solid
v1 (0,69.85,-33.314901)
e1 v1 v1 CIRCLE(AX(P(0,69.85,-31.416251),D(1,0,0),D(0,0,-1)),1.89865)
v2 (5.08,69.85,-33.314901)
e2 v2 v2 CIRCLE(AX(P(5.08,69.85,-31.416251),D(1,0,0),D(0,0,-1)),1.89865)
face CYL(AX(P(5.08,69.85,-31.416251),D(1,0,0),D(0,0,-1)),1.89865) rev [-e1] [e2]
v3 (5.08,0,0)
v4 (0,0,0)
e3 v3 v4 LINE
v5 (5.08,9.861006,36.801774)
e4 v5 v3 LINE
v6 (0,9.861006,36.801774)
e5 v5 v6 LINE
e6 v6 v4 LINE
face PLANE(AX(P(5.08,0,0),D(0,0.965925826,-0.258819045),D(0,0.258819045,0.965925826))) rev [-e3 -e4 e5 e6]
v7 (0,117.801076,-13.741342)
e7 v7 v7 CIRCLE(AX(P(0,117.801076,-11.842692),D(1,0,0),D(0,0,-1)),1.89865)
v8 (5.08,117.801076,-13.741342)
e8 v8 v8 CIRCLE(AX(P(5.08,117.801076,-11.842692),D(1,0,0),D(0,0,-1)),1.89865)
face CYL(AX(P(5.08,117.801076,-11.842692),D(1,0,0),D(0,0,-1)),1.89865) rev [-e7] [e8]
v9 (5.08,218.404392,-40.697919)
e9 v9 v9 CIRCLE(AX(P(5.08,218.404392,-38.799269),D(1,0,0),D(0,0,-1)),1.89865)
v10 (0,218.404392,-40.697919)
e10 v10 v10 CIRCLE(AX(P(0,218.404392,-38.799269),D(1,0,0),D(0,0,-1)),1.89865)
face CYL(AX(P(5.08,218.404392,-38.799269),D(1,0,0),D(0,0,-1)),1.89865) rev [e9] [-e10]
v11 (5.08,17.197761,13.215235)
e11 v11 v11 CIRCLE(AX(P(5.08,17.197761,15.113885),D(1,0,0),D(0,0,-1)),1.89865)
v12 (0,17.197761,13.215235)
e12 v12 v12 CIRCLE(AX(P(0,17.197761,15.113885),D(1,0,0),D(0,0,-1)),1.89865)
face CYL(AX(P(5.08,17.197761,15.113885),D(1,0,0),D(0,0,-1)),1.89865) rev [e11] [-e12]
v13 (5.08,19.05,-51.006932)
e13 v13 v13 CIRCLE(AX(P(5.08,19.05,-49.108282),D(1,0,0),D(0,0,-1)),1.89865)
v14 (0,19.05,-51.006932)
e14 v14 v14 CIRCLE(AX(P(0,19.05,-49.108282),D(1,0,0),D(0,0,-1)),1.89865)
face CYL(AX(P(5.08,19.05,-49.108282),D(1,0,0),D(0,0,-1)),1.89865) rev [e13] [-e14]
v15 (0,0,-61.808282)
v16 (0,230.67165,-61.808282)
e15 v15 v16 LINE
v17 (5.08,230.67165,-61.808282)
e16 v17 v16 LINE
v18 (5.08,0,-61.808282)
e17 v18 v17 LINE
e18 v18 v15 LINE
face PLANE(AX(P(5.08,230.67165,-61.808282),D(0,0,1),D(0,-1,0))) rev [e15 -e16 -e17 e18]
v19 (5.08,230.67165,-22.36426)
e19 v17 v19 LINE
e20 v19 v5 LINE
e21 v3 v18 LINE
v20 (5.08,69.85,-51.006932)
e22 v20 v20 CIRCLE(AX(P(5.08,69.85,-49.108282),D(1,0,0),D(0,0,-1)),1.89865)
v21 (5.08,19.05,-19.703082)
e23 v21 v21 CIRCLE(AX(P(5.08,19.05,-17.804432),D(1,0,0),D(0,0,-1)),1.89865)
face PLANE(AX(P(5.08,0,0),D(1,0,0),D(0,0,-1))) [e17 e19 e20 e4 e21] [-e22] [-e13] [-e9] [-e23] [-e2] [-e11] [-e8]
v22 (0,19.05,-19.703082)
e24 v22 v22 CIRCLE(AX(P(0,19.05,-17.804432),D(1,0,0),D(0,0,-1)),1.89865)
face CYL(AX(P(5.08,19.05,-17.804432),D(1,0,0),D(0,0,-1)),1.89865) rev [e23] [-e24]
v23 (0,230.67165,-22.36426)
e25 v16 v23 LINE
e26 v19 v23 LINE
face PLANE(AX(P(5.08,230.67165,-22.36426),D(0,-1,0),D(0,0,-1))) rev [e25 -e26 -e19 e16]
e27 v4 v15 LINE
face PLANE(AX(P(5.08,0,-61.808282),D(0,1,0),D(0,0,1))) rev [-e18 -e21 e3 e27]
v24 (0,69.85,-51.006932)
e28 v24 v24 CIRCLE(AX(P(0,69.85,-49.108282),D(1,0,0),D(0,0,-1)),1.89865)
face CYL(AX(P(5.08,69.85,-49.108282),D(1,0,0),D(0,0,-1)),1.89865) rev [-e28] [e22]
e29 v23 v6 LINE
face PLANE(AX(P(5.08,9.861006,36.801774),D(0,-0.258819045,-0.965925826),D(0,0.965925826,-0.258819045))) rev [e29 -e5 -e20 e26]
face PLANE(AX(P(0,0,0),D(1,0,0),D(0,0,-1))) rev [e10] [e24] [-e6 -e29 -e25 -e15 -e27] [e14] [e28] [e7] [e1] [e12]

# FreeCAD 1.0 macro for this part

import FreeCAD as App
import Part
import Sketcher

V = App.Vector
Q = App.Units.Quantity


def add_polygon(sketch, points):
    """Adds a closed chain of lines whose ends are joined by coincident constraints."""
    first, n = sketch.GeometryCount, len(points)
    for a, b in zip(points, points[1:] + points[:1]):
        sketch.addGeometry(Part.LineSegment(App.Vector(*a, 0), App.Vector(*b, 0)), False)
    for i in range(n):
        sketch.addConstraint(Sketcher.Constraint("Coincident", first + i, 2, first + (i + 1) % n, 1))

doc = App.newDocument("Part")
body = doc.addObject("PartDesign::Body", "Body")

# Sketch on YZ plane
sketch1 = body.newObject("Sketcher::SketchObject", "Sketch")
sketch1.AttachmentSupport = (doc.getObject("YZ_Plane"), [""])
sketch1.MapMode = "FlatFace"
add_polygon(sketch1, [(10, 37), (0, 0), (0, -62), (231, -62), (231, -22)])  # lines 0-4
sketch1.addConstraint([
    Sketcher.Constraint("Vertical", 1),
    Sketcher.Constraint("Horizontal", 2),
    Sketcher.Constraint("Vertical", 3),
    Sketcher.Constraint("Coincident", 0, 2, -1, 1),
    Sketcher.Constraint("Perpendicular", 0, 4),
    Sketcher.Constraint("Distance", 4, Q("9 in")),
    Sketcher.Constraint("Angle", 0, Q("-105 deg")),
    Sketcher.Constraint("Distance", 0, Q("1.5 in")),
    Sketcher.Constraint("DistanceY", 1, 2, 1, 1, 61.808282),
])
pad1 = body.newObject("PartDesign::Pad", "Pad")
pad1.Profile = sketch1
pad1.Length = Q("0.2 in")

# Sketch on YZ plane
sketch2 = body.newObject("Sketcher::SketchObject", "Sketch001")
sketch2.AttachmentSupport = (doc.getObject("YZ_Plane"), [""])
sketch2.MapMode = "FlatFace"
sketch2.AttachmentOffset = App.Placement(V(0, 0, 0.2 * 25.4), App.Rotation())
sketch2.addGeometry([
    Part.Circle(V(69.8, -49.1, 0), V(0, 0, 1), 1.9),  # 0
    Part.Circle(V(218.4, -38.8, 0), V(0, 0, 1), 1.9),  # 1
    Part.Circle(V(117.8, -11.8, 0), V(0, 0, 1), 1.9),  # 2
    Part.Circle(V(17.2, 15.1, 0), V(0, 0, 1), 1.9),  # 3
    Part.Circle(V(19.1, -49.1, 0), V(0, 0, 1), 1.9),  # 4
    Part.Circle(V(19.1, -17.8, 0), V(0, 0, 1), 1.9),  # 5
    Part.Circle(V(69.8, -31.4, 0), V(0, 0, 1), 1.9),  # 6
], False)
sketch2.addConstraint([
    Sketcher.Constraint("Equal", 0, 1),
    Sketcher.Constraint("Equal", 1, 2),
    Sketcher.Constraint("Equal", 2, 3),
    Sketcher.Constraint("Equal", 3, 4),
    Sketcher.Constraint("Equal", 4, 5),
    Sketcher.Constraint("Equal", 5, 6),
    Sketcher.Constraint("Horizontal", 0, 3, 4, 3),
    Sketcher.Constraint("Vertical", 4, 3, 5, 3),
    Sketcher.Constraint("Vertical", 0, 3, 6, 3),
    Sketcher.Constraint("DistanceX", 4, 3, 0, 3, Q("2 in")),
    Sketcher.Constraint("Diameter", 0, Q("0.1495 in")),
    Sketcher.Constraint("DistanceX", -1, 1, 0, 3, Q("2.75 in")),
    Sketcher.Constraint("DistanceX", -1, 1, 1, 3, 218.404392),
    Sketcher.Constraint("DistanceY", 1, 3, -1, 1, 38.799269),
    Sketcher.Constraint("DistanceY", 2, 3, -1, 1, 11.842692),
    Sketcher.Constraint("DistanceX", -1, 1, 3, 3, 17.197761),
    Sketcher.Constraint("DistanceY", 6, 3, -1, 1, 31.416251),
    Sketcher.Constraint("DistanceY", 0, 3, 2, 3, 37.26559),
    Sketcher.Constraint("DistanceY", 4, 3, 5, 3, 31.30385),
    Sketcher.Constraint("DistanceX", -1, 1, 2, 3, 117.801076),
    Sketcher.Constraint("DistanceY", -1, 1, 3, 3, 15.113885),
])
doc.recompute()
hole = body.newObject("PartDesign::Hole", "Hole")
hole.Profile = sketch2
hole.ThreadType = "None"
hole.Diameter = Q("0.1495 in")
hole.DepthType = "ThroughAll"

doc.recompute()
